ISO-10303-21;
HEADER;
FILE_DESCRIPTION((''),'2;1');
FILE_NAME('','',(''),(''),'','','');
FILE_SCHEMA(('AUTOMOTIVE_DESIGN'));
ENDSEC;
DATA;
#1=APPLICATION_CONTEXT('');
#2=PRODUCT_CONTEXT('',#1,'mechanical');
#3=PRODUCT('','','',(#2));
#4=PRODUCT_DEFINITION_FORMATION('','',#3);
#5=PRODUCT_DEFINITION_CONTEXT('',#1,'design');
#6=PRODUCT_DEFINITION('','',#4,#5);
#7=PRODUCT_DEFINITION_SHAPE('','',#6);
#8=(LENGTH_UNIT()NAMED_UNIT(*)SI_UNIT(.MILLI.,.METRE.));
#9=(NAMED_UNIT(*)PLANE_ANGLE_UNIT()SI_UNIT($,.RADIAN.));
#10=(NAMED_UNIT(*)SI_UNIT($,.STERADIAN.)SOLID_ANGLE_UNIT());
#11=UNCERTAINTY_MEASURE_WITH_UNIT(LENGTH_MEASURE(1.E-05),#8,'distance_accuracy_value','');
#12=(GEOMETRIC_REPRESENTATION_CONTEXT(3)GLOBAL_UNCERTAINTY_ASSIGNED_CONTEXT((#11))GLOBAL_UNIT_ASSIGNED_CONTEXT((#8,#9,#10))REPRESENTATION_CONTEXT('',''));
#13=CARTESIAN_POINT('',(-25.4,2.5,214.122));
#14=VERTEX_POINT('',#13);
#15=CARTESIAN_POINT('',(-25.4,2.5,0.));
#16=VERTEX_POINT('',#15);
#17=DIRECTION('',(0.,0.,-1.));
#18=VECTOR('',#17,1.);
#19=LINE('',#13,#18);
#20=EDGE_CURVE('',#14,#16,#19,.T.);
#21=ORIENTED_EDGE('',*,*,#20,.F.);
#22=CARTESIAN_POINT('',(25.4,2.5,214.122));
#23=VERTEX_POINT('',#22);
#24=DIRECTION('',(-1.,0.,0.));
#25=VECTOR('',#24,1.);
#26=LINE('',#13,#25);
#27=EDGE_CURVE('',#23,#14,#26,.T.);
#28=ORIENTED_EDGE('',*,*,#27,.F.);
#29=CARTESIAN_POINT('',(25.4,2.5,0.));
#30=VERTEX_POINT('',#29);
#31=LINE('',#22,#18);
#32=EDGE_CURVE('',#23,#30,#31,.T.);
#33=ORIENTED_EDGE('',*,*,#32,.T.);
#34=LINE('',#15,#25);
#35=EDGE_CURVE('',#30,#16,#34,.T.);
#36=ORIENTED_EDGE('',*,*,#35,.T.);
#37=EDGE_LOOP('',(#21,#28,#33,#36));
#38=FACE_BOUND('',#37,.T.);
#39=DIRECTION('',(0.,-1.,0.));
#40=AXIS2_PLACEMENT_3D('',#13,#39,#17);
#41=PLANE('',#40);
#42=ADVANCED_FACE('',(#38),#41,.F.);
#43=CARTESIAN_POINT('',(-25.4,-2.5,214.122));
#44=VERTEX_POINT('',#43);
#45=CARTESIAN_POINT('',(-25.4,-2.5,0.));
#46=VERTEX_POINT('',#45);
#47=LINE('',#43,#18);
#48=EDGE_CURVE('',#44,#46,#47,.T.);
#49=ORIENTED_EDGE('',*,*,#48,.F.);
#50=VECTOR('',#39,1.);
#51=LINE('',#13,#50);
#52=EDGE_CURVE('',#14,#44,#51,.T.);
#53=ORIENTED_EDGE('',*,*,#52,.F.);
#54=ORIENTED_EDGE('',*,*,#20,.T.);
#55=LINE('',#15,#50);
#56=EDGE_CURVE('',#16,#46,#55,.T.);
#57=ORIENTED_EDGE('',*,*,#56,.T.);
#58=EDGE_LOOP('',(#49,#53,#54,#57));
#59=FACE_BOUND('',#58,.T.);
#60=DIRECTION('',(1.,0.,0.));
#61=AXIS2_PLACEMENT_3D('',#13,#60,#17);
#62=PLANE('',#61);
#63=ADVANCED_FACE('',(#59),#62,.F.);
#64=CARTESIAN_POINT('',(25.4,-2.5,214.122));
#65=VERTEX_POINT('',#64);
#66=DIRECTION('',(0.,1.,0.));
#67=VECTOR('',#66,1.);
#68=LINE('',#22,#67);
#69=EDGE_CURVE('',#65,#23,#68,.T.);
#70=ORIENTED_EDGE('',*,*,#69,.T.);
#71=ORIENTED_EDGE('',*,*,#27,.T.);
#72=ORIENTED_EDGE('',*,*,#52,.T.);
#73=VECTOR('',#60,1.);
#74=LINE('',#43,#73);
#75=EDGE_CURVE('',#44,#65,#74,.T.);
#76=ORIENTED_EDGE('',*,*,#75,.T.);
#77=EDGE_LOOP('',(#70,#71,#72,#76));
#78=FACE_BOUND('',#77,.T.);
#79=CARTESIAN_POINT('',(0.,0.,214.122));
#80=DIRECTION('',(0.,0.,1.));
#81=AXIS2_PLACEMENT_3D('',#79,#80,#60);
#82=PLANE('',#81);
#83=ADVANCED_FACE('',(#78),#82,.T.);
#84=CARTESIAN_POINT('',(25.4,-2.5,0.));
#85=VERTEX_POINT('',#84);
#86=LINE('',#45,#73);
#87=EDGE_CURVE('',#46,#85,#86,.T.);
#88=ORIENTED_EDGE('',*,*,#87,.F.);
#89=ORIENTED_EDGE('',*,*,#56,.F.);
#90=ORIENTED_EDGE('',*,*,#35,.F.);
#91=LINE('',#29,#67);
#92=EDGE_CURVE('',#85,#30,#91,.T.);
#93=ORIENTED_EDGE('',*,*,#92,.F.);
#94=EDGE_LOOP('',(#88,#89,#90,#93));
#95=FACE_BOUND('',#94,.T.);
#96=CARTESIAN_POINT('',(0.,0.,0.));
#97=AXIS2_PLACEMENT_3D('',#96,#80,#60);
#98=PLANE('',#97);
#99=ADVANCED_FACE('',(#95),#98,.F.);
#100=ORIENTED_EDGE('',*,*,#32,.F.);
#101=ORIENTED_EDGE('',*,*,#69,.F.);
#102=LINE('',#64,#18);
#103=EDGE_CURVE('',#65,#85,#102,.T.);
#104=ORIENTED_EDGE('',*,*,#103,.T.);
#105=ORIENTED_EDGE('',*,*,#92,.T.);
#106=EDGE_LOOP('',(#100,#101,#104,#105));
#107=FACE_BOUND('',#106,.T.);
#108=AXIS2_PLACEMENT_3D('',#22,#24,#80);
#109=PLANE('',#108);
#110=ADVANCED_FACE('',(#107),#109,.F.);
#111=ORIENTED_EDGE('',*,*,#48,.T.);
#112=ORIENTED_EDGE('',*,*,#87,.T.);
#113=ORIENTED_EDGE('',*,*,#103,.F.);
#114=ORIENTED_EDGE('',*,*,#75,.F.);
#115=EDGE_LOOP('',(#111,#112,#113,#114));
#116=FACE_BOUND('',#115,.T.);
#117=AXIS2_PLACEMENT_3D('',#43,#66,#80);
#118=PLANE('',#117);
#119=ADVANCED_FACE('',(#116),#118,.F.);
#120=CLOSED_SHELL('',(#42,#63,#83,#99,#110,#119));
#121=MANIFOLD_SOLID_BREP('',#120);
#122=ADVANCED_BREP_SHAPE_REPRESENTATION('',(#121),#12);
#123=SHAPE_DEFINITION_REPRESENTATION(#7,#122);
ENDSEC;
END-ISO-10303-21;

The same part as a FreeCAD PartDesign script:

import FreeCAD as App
import Part
import Sketcher
Q = App.Units.Quantity


def add_polygon(sketch, points):
    """Adds a closed chain of lines whose ends are joined by coincident constraints."""
    first, n = sketch.GeometryCount, len(points)
    for a, b in zip(points, points[1:] + points[:1]):
        sketch.addGeometry(Part.LineSegment(App.Vector(*a, 0), App.Vector(*b, 0)), False)
    for i in range(n):
        sketch.addConstraint(Sketcher.Constraint("Coincident", first + i, 2, first + (i + 1) % n, 1))

doc = App.newDocument("Part")
params = doc.addObject("Spreadsheet::Sheet", "Params")
for row, (alias, value) in enumerate([
    ("sketch1_width", "2 in"),
    ("pad1_length", "8.43 in"),
], start=1):
    params.set(f"A{row}", alias)
    params.set(f"B{row}", "=" + value)
    params.setAlias(f"B{row}", alias)

body = doc.addObject("PartDesign::Body", "Body")

sketch1 = body.newObject("Sketcher::SketchObject", "Sketch")
sketch1.AttachmentSupport = (doc.getObject("XY_Plane"), [""])
sketch1.MapMode = "FlatFace"
add_polygon(sketch1, [(-25, 2), (-25, -2), (25, -2), (25, 2)])
sketch1.addConstraint([
    Sketcher.Constraint("Vertical", 0),
    Sketcher.Constraint("Horizontal", 1),
    Sketcher.Constraint("Vertical", 2),
    Sketcher.Constraint("Horizontal", 3),
    Sketcher.Constraint("Symmetric", 0, 2, 2, 2, -1, 1),
    Sketcher.Constraint("DistanceX", 1, 1, 1, 2, Q("2 in")),
    Sketcher.Constraint("DistanceY", 0, 2, 0, 1, 5.0),
])
sketch1.setExpression("Constraints[9]", "Params.sketch1_width")
pad1 = body.newObject("PartDesign::Pad", "Pad")
pad1.Profile = sketch1
pad1.setExpression("Length", "Params.pad1_length")

doc.recompute()
